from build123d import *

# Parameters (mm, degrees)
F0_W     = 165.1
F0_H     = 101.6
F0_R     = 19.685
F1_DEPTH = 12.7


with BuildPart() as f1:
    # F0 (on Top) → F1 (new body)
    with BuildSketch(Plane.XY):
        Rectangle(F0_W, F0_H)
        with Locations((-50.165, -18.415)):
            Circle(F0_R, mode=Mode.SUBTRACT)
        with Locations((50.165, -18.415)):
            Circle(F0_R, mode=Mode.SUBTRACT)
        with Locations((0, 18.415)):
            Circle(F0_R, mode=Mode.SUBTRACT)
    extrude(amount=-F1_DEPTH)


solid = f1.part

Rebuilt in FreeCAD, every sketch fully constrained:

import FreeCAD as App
import Part
import Sketcher
from FreeCAD import Vector
Q = App.Units.Quantity

doc = App.newDocument("Part")
body = doc.addObject("PartDesign::Body", "Body")

# Sketch on XY plane
sketch1 = doc.addObject("Sketcher::SketchObject", "Sketch")
body.addObject(sketch1)
sketch1.AttachmentSupport = (doc.XY_Plane, [""])
sketch1.MapMode = "FlatFace"
sketch1.addGeometry([
    Part.LineSegment(Vector(-82.55, 50.8, 0), Vector(-82.55, -50.8, 0)),  # 0
    Part.LineSegment(Vector(-82.55, -50.8, 0), Vector(82.55, -50.8, 0)),  # 1
    Part.LineSegment(Vector(82.55, -50.8, 0), Vector(82.55, 50.8, 0)),  # 2
    Part.LineSegment(Vector(82.55, 50.8, 0), Vector(-82.55, 50.8, 0)),  # 3
    Part.Circle(Vector(-50.165, -18.415, 0), Vector(0, 0, 1), 19.685),  # 4
    Part.Circle(Vector(50.165, -18.415, 0), Vector(0, 0, 1), 19.685),  # 5
    Part.Circle(Vector(0, 18.415, 0), Vector(0, 0, 1), 19.685),  # 6
], False)
sketch1.addConstraint([
    Sketcher.Constraint("Coincident", 0, 2, 1, 1),
    Sketcher.Constraint("Coincident", 1, 2, 2, 1),
    Sketcher.Constraint("Coincident", 2, 2, 3, 1),
    Sketcher.Constraint("Coincident", 3, 2, 0, 1),
    Sketcher.Constraint("Vertical", 0),
    Sketcher.Constraint("Horizontal", 1),
    Sketcher.Constraint("Vertical", 2),
    Sketcher.Constraint("Horizontal", 3),
    Sketcher.Constraint("Equal", 4, 5),
    Sketcher.Constraint("Equal", 5, 6),
    Sketcher.Constraint("Symmetric", 0, 2, 2, 2, -1, 1),
    Sketcher.Constraint("Symmetric", 4, 3, 5, 3, -2),
    Sketcher.Constraint("PointOnObject", 6, 3, -2),
    Sketcher.Constraint("Diameter", 4, Q("1.55 in")),
    Sketcher.Constraint("DistanceY", 0, 2, 0, 1, Q("4 in")),
    Sketcher.Constraint("DistanceX", 1, 1, 1, 2, Q("6.5 in")),
    Sketcher.Constraint("DistanceX", 4, 3, 5, 3, Q("3.95 in")),
    Sketcher.Constraint("DistanceY", 4, 3, 6, 3, Q("1.45 in")),
    Sketcher.Constraint("DistanceY", 4, 3, -1, 1, Q("0.725 in")),
])
pad1 = doc.addObject("PartDesign::Pad", "Pad")
body.addObject(pad1)
pad1.Profile = sketch1
pad1.Length = Q("0.5 in")
pad1.Reversed = True

doc.recompute()
